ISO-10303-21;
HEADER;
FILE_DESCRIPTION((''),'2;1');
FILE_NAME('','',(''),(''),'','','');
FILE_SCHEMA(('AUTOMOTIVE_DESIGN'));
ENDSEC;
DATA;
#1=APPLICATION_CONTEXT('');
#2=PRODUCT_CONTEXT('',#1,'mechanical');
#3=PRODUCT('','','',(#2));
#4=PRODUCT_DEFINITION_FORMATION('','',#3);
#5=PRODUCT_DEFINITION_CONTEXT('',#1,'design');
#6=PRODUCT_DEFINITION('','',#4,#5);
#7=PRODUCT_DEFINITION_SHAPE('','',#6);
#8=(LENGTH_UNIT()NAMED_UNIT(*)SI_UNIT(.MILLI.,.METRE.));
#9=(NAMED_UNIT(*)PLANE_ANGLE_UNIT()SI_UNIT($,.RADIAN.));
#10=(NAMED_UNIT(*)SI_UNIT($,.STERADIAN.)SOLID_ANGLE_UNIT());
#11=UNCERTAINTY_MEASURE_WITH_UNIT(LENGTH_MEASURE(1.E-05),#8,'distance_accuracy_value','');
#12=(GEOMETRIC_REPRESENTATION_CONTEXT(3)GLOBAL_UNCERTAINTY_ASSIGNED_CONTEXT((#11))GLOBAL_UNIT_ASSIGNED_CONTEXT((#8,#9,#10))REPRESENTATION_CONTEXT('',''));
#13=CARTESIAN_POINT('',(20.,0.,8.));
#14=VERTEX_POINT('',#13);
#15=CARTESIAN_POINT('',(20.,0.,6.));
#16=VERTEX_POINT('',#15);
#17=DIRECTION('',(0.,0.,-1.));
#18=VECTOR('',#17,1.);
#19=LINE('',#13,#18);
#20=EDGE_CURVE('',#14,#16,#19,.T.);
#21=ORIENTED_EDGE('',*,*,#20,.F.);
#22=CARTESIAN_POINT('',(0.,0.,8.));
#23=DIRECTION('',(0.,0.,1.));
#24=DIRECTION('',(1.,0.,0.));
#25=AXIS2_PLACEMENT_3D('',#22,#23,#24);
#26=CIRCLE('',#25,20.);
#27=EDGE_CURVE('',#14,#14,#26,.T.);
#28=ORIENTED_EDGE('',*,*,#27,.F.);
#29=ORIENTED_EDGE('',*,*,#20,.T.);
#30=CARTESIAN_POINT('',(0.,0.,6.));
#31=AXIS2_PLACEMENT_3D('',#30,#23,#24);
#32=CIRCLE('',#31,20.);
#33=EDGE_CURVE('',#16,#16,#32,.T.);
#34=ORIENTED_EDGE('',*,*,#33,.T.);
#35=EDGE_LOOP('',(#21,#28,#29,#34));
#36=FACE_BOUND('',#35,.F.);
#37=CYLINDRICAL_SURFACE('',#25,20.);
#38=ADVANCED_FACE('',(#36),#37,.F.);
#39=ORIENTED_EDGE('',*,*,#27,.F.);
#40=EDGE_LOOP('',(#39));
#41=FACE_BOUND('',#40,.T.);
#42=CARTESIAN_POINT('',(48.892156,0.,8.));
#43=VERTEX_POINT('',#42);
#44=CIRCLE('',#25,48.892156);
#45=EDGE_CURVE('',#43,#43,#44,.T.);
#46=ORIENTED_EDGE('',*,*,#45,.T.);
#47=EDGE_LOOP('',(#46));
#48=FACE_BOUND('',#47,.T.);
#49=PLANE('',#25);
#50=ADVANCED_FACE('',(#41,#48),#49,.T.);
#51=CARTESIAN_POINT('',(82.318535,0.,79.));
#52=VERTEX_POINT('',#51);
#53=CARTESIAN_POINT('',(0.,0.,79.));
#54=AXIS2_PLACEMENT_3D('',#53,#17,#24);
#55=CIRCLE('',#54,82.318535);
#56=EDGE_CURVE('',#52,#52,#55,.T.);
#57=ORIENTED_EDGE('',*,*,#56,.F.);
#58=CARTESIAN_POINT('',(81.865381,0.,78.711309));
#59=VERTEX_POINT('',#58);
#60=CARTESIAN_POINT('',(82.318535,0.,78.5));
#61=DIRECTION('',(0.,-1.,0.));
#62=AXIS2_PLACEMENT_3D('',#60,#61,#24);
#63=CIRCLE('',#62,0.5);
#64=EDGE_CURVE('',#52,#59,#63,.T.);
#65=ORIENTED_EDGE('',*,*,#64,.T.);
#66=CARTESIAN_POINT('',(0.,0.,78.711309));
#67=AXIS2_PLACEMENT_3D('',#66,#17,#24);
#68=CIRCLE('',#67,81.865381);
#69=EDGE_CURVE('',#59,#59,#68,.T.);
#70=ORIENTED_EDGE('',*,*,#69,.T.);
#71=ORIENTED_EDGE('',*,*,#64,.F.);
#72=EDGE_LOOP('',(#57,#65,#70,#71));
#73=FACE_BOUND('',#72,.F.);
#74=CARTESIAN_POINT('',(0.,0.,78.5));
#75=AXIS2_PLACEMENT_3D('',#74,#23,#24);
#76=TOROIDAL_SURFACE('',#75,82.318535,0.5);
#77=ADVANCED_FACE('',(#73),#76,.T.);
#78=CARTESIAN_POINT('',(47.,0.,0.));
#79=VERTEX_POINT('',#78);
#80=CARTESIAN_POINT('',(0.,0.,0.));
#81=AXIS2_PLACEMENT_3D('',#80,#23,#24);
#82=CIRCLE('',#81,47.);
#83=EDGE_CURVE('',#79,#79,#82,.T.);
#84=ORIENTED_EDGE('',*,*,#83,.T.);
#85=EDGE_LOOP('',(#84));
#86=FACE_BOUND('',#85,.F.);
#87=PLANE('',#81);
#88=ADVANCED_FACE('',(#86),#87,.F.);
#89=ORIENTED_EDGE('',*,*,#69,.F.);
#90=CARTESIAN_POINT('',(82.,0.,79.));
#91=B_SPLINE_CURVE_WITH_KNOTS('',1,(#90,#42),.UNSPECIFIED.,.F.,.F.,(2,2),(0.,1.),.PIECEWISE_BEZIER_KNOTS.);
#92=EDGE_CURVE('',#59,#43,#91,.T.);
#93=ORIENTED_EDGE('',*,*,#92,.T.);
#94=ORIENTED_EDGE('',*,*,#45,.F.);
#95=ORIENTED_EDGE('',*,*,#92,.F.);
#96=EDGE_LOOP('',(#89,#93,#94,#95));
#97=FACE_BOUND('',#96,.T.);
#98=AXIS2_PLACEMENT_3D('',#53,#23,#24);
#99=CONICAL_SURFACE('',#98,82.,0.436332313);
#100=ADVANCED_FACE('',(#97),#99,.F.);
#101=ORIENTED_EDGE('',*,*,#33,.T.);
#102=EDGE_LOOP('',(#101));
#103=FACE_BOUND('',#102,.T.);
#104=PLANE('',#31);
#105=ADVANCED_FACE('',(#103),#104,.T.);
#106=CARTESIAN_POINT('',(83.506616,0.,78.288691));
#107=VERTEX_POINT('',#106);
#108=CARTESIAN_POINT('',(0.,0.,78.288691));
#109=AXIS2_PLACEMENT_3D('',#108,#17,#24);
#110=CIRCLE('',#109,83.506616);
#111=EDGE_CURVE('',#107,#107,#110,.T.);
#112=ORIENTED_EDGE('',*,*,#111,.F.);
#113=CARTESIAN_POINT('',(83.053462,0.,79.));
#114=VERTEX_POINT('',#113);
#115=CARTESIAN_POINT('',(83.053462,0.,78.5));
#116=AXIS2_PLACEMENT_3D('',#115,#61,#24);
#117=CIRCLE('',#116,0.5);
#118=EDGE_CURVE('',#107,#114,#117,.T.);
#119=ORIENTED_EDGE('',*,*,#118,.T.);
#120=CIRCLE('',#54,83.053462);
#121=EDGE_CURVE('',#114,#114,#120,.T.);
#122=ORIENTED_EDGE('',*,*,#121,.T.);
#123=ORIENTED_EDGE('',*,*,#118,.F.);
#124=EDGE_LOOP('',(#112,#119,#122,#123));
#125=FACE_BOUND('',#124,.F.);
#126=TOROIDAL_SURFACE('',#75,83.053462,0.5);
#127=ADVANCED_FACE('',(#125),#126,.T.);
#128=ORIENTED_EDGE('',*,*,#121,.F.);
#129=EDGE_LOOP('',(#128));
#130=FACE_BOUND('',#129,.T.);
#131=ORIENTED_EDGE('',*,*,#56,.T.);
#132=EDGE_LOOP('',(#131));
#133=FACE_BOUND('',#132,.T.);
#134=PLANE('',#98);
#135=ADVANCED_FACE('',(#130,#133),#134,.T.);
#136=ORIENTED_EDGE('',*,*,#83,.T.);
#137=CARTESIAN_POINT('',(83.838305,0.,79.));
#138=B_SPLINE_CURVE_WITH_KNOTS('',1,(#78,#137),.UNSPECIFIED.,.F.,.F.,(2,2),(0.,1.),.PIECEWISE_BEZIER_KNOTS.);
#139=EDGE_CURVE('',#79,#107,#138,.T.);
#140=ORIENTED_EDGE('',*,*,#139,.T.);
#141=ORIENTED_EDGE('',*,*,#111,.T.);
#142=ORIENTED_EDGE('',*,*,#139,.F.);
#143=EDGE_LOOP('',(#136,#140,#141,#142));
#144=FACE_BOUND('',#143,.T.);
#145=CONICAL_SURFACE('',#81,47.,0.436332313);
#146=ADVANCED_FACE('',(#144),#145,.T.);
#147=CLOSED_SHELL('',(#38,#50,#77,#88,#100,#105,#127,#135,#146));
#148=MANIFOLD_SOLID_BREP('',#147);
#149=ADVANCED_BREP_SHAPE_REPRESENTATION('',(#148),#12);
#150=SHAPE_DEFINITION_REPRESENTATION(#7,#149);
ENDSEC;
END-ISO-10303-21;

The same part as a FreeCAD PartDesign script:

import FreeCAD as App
import Part
import Sketcher
from FreeCAD import Vector


def edges_at(feature, points):
    """Names of the edges that pass closest to the given points."""
    edges = feature.Shape.Edges
    near = lambda p: min(range(len(edges)), key=lambda i: edges[i].distToShape(Part.Vertex(*p))[0])
    return sorted({f"Edge{near(p) + 1}" for p in points})

doc = App.newDocument("Part")
body = doc.addObject("PartDesign::Body", "Body")

# Sketch on XY plane
sketch1 = doc.addObject("Sketcher::SketchObject", "Sketch")
body.addObject(sketch1)
sketch1.AttachmentSupport = (doc.XY_Plane, [""])
sketch1.MapMode = "FlatFace"
sketch1.addGeometry(Part.Circle(Vector(0, 0, 0), Vector(0, 0, 1), 47), False)
sketch1.addConstraint(Sketcher.Constraint("Coincident", 0, 3, -1, 1))
sketch1.addConstraint(Sketcher.Constraint("Diameter", 0, 94.0))
pad1 = doc.addObject("PartDesign::Pad", "Pad")
body.addObject(pad1)
pad1.Profile = sketch1
pad1.Length = 79
pad1.TaperAngle = 25

# Sketch on XY plane
sketch2 = doc.addObject("Sketcher::SketchObject", "Sketch001")
body.addObject(sketch2)
sketch2.AttachmentSupport = (doc.XY_Plane, [""])
sketch2.MapMode = "FlatFace"
sketch2.AttachmentOffset = App.Placement(Vector(0, 0, 79), App.Rotation())
sketch2.addGeometry(Part.Circle(Vector(0, 0, 0), Vector(0, 0, 1), 82), False)
sketch2.addConstraint(Sketcher.Constraint("Coincident", 0, 3, -1, 1))
sketch2.addConstraint(Sketcher.Constraint("Diameter", 0, 164.0))
pocket1 = doc.addObject("PartDesign::Pocket", "Pocket")
body.addObject(pocket1)
pocket1.Profile = sketch2
pocket1.Length = 71
pocket1.TaperAngle = -25

# Sketch on XY plane
sketch3 = doc.addObject("Sketcher::SketchObject", "Sketch002")
body.addObject(sketch3)
sketch3.AttachmentSupport = (doc.XY_Plane, [""])
sketch3.MapMode = "FlatFace"
sketch3.AttachmentOffset = App.Placement(Vector(0, 0, 8), App.Rotation())
sketch3.addGeometry(Part.Circle(Vector(0, 0, 0), Vector(0, 0, 1), 20), False)
sketch3.addConstraint(Sketcher.Constraint("Coincident", 0, 3, -1, 1))
sketch3.addConstraint(Sketcher.Constraint("Diameter", 0, 40.0))
pocket2 = doc.addObject("PartDesign::Pocket", "Pocket001")
body.addObject(pocket2)
pocket2.Profile = sketch3
pocket2.Length = 2
doc.recompute()

fillet = doc.addObject("PartDesign::Fillet", "Fillet")
body.addObject(fillet)
fillet.Base = (pocket2, edges_at(pocket2, [(-83.838, 0, 79), (-82, 0, 79)]))
fillet.Radius = 0.5

doc.recompute()
